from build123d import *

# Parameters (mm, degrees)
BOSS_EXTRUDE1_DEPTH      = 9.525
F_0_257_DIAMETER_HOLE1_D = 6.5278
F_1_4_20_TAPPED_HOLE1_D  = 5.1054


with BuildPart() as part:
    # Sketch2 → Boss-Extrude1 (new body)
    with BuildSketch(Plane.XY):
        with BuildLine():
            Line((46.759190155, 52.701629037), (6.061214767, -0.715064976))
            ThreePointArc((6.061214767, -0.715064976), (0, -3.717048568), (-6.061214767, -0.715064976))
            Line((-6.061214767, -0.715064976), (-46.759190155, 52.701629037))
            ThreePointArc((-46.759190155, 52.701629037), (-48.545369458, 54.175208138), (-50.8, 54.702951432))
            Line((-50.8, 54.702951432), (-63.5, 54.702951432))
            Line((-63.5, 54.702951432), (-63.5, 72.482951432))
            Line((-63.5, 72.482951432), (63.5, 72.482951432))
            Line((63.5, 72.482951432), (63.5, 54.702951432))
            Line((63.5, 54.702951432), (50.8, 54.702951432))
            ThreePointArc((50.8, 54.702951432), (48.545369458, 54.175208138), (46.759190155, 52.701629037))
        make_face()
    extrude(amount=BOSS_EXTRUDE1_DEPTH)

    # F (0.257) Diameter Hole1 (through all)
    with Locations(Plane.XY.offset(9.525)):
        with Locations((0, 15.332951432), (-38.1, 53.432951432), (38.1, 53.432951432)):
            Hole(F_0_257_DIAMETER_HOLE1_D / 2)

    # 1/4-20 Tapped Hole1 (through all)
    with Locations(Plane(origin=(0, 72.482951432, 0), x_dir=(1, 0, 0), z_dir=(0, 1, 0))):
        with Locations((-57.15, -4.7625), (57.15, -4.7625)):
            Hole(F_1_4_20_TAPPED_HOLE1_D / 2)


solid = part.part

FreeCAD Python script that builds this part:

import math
import FreeCAD as App
import Part
import Sketcher

V = App.Vector
Q = App.Units.Quantity

doc = App.newDocument("Part")
body = doc.addObject("PartDesign::Body", "Body")

sketch1 = body.newObject("Sketcher::SketchObject", "Sketch")
sketch1.AttachmentSupport = (doc.getObject("XY_Plane"), [""])
sketch1.MapMode = "FlatFace"
sketch1.addGeometry([
    Part.LineSegment(V(6.1, -0.7, 0), V(46.8, 52.7, 0)),
    Part.ArcOfCircle(Part.Circle(V(50.8, 49.6, 0), V(0, 0, 1), 5.1), math.radians(90), math.radians(143)),
    Part.LineSegment(V(50.8, 54.7, 0), V(63.5, 54.7, 0)),
    Part.LineSegment(V(63.5, 54.7, 0), V(63.5, 72.5, 0)),
    Part.LineSegment(V(63.5, 72.5, 0), V(-63.5, 72.5, 0)),
    Part.LineSegment(V(-63.5, 72.5, 0), V(-63.5, 54.7, 0)),
    Part.LineSegment(V(-63.5, 54.7, 0), V(-50.8, 54.7, 0)),
    Part.ArcOfCircle(Part.Circle(V(-50.8, 49.6, 0), V(0, 0, 1), 5.1), math.radians(37), math.radians(90)),
    Part.LineSegment(V(-46.8, 52.7, 0), V(-6.1, -0.7, 0)),
    Part.ArcOfCircle(Part.Circle(V(0, 3.9, 0), V(0, 0, 1), 7.6), math.radians(-143), math.radians(-37)),
], False)
sketch1.addConstraint([
    Sketcher.Constraint("Tangent", 0, 2, 1, 2),
    Sketcher.Constraint("Tangent", 1, 1, 2, 1),
    Sketcher.Constraint("Coincident", 2, 2, 3, 1),
    Sketcher.Constraint("Coincident", 3, 2, 4, 1),
    Sketcher.Constraint("Coincident", 4, 2, 5, 1),
    Sketcher.Constraint("Coincident", 5, 2, 6, 1),
    Sketcher.Constraint("Tangent", 6, 2, 7, 2),
    Sketcher.Constraint("Tangent", 7, 1, 8, 1),
    Sketcher.Constraint("Tangent", 8, 2, 9, 1),
    Sketcher.Constraint("Tangent", 9, 2, 0, 1),
    Sketcher.Constraint("Horizontal", 2),
    Sketcher.Constraint("Vertical", 3),
    Sketcher.Constraint("Horizontal", 4),
    Sketcher.Constraint("Vertical", 5),
    Sketcher.Constraint("Horizontal", 6),
    Sketcher.Constraint("Equal", 1, 7),
    Sketcher.Constraint("Symmetric", 1, 3, 7, 3, -2),
    Sketcher.Constraint("PointOnObject", 9, 3, -2),
    Sketcher.Constraint("Equal", 2, 6),
    Sketcher.Constraint("Radius", 1, Q("0.2 in")),
    Sketcher.Constraint("Radius", 9, Q("0.3 in")),
    Sketcher.Constraint("DistanceX", 4, 2, 4, 1, Q("5 in")),
    Sketcher.Constraint("DistanceX", 2, 1, 2, 2, Q("0.5 in")),
    Sketcher.Constraint("DistanceY", 3, 1, 3, 2, Q("0.7 in")),
    Sketcher.Constraint("DistanceY", 9, 3, 1, 1, Q("2 in")),
    Sketcher.Constraint("DistanceY", -1, 1, 1, 3, 49.622951),
])
pad1 = body.newObject("PartDesign::Pad", "Pad")
pad1.Profile = sketch1
pad1.Length = Q("0.375 in")

sketch2 = body.newObject("Sketcher::SketchObject", "Sketch001")
sketch2.AttachmentSupport = (doc.getObject("XY_Plane"), [""])
sketch2.MapMode = "FlatFace"
sketch2.AttachmentOffset = App.Placement(V(0, 0, 0.375 * 25.4), App.Rotation())
sketch2.addGeometry([
    Part.Circle(V(0, 15.3, 0), V(0, 0, 1), 3.3),
    Part.Circle(V(-38.1, 53.4, 0), V(0, 0, 1), 3.3),
    Part.Circle(V(38.1, 53.4, 0), V(0, 0, 1), 3.3),
], False)
sketch2.addConstraint([
    Sketcher.Constraint("Equal", 0, 1),
    Sketcher.Constraint("Equal", 1, 2),
    Sketcher.Constraint("Symmetric", 1, 3, 2, 3, -2),
    Sketcher.Constraint("PointOnObject", 0, 3, -2),
    Sketcher.Constraint("Diameter", 0, Q("0.257 in")),
    Sketcher.Constraint("DistanceX", 1, 3, 2, 3, Q("3 in")),
    Sketcher.Constraint("DistanceY", 0, 3, 1, 3, Q("1.5 in")),
    Sketcher.Constraint("DistanceY", -1, 1, 0, 3, 15.332951),
])
doc.recompute()
hole = body.newObject("PartDesign::Hole", "Hole")
hole.Profile = sketch2
hole.ThreadType = "None"
hole.Diameter = Q("0.257 in")
hole.DepthType = "ThroughAll"

sketch3 = body.newObject("Sketcher::SketchObject", "Sketch002")
sketch3.AttachmentSupport = (doc.getObject("XZ_Plane"), [""])
sketch3.MapMode = "FlatFace"
sketch3.AttachmentOffset = App.Placement(V(0, 0, -72.482951), App.Rotation())
sketch3.addGeometry([
    Part.Circle(V(-57.1, 4.8, 0), V(0, 0, 1), 2.6),
    Part.Circle(V(57.1, 4.8, 0), V(0, 0, 1), 2.6),
], False)
sketch3.addConstraint([
    Sketcher.Constraint("Equal", 0, 1),
    Sketcher.Constraint("Symmetric", 0, 3, 1, 3, -2),
    Sketcher.Constraint("Diameter", 0, Q("0.201 in")),
    Sketcher.Constraint("DistanceX", 0, 3, 1, 3, Q("4.5 in")),
    Sketcher.Constraint("DistanceY", -1, 1, 0, 3, Q("0.1875 in")),
])
doc.recompute()
hole2 = body.newObject("PartDesign::Hole", "Hole001")
hole2.Profile = sketch3
hole2.ThreadType = "None"
hole2.Diameter = Q("0.201 in")
hole2.DepthType = "ThroughAll"
hole2.Reversed = True

doc.recompute()
